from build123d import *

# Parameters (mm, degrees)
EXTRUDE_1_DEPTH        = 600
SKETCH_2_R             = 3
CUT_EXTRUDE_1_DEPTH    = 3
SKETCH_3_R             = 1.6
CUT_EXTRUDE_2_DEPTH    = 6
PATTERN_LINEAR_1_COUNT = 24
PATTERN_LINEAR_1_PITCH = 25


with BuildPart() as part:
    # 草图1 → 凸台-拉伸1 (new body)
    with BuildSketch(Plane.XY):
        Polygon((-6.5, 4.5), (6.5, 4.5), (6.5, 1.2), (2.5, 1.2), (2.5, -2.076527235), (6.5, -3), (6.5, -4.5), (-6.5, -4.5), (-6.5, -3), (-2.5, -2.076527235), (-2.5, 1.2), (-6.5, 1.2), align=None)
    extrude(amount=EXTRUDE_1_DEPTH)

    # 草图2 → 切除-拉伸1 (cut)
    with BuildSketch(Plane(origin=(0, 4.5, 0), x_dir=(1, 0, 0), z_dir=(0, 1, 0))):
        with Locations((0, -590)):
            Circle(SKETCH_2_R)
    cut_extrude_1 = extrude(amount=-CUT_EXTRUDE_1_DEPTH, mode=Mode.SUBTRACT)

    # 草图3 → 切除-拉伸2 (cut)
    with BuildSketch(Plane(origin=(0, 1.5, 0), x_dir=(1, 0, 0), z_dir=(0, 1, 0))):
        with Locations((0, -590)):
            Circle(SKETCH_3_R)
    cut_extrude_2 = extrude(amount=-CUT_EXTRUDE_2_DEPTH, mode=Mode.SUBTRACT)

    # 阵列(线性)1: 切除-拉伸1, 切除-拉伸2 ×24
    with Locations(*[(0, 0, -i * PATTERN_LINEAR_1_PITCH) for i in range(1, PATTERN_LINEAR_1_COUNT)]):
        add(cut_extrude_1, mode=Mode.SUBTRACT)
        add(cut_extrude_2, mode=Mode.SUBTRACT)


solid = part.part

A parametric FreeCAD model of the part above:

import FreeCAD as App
import Part
import Sketcher
from FreeCAD import Vector
Q = App.Units.Quantity

doc = App.newDocument("Part")
body = doc.addObject("PartDesign::Body", "Body")

# Sketch on XY plane
sketch1 = body.newObject("Sketcher::SketchObject", "Sketch")
sketch1.AttachmentSupport = (doc.getObject("XY_Plane"), [""])
sketch1.MapMode = "FlatFace"
sketch1.addGeometry([
    Part.LineSegment(Vector(6.5, 4.5, 0), Vector(-6.5, 4.5, 0)),  # 0
    Part.LineSegment(Vector(-6.5, 4.5, 0), Vector(-6.5, 1.2, 0)),  # 1
    Part.LineSegment(Vector(-6.5, 1.2, 0), Vector(-2.5, 1.2, 0)),  # 2
    Part.LineSegment(Vector(-2.5, 1.2, 0), Vector(-2.5, -2.1, 0)),  # 3
    Part.LineSegment(Vector(-2.5, -2.1, 0), Vector(-6.5, -3, 0)),  # 4
    Part.LineSegment(Vector(-6.5, -3, 0), Vector(-6.5, -4.5, 0)),  # 5
    Part.LineSegment(Vector(-6.5, -4.5, 0), Vector(6.5, -4.5, 0)),  # 6
    Part.LineSegment(Vector(6.5, -4.5, 0), Vector(6.5, -3, 0)),  # 7
    Part.LineSegment(Vector(6.5, -3, 0), Vector(2.5, -2.1, 0)),  # 8
    Part.LineSegment(Vector(2.5, -2.1, 0), Vector(2.5, 1.2, 0)),  # 9
    Part.LineSegment(Vector(2.5, 1.2, 0), Vector(6.5, 1.2, 0)),  # 10
    Part.LineSegment(Vector(6.5, 1.2, 0), Vector(6.5, 4.5, 0)),  # 11
], False)
sketch1.addConstraint([
    Sketcher.Constraint("Coincident", 0, 2, 1, 1),
    Sketcher.Constraint("Coincident", 1, 2, 2, 1),
    Sketcher.Constraint("Coincident", 2, 2, 3, 1),
    Sketcher.Constraint("Coincident", 3, 2, 4, 1),
    Sketcher.Constraint("Coincident", 4, 2, 5, 1),
    Sketcher.Constraint("Coincident", 5, 2, 6, 1),
    Sketcher.Constraint("Coincident", 6, 2, 7, 1),
    Sketcher.Constraint("Coincident", 7, 2, 8, 1),
    Sketcher.Constraint("Coincident", 8, 2, 9, 1),
    Sketcher.Constraint("Coincident", 9, 2, 10, 1),
    Sketcher.Constraint("Coincident", 10, 2, 11, 1),
    Sketcher.Constraint("Coincident", 11, 2, 0, 1),
    Sketcher.Constraint("Horizontal", 0),
    Sketcher.Constraint("Vertical", 1),
    Sketcher.Constraint("Horizontal", 2),
    Sketcher.Constraint("Vertical", 3),
    Sketcher.Constraint("Vertical", 5),
    Sketcher.Constraint("Horizontal", 6),
    Sketcher.Constraint("Vertical", 7),
    Sketcher.Constraint("Vertical", 9),
    Sketcher.Constraint("Horizontal", 10),
    Sketcher.Constraint("Vertical", 11),
    Sketcher.Constraint("Symmetric", 0, 2, 6, 2, -1, 1),
    Sketcher.Constraint("Symmetric", 4, 2, 7, 2, -2),
    Sketcher.Constraint("Symmetric", 3, 2, 8, 2, -2),
    Sketcher.Constraint("Symmetric", 1, 2, 10, 2, -2),
    Sketcher.Constraint("DistanceX", 0, 2, 0, 1, 13.0),
    Sketcher.Constraint("DistanceX", 2, 1, 2, 2, 4.0),
    Sketcher.Constraint("Angle", 4, Q("-167 deg")),
    Sketcher.Constraint("DistanceY", 1, 2, 1, 1, 3.3),
    Sketcher.Constraint("DistanceY", 5, 2, 5, 1, 1.5),
    Sketcher.Constraint("DistanceY", 4, 2, -1, 1, 3.0),
])
pad1 = body.newObject("PartDesign::Pad", "Pad")
pad1.Profile = sketch1
pad1.Length = 600

# Sketch on XZ plane
sketch2 = body.newObject("Sketcher::SketchObject", "Sketch001")
sketch2.AttachmentSupport = (doc.getObject("XZ_Plane"), [""])
sketch2.MapMode = "FlatFace"
sketch2.AttachmentOffset = App.Placement(Vector(0, 0, -4.5), App.Rotation())
sketch2.addGeometry(Part.Circle(Vector(0, 590, 0), Vector(0, 0, 1), 3), False)
sketch2.addConstraint([
    Sketcher.Constraint("PointOnObject", 0, 3, -2),
    Sketcher.Constraint("Diameter", 0, 6.0),
    Sketcher.Constraint("DistanceY", -1, 1, 0, 3, 590.0),
])
pocket1 = body.newObject("PartDesign::Pocket", "Pocket")
pocket1.Profile = sketch2
pocket1.Length = 3
pocket1.Reversed = True

# Sketch on XZ plane
sketch3 = body.newObject("Sketcher::SketchObject", "Sketch002")
sketch3.AttachmentSupport = (doc.getObject("XZ_Plane"), [""])
sketch3.MapMode = "FlatFace"
sketch3.AttachmentOffset = App.Placement(Vector(0, 0, -1.5), App.Rotation())
sketch3.addGeometry(Part.Circle(Vector(0, 590, 0), Vector(0, 0, 1), 1.6), False)
sketch3.addConstraint([
    Sketcher.Constraint("PointOnObject", 0, 3, -2),
    Sketcher.Constraint("Diameter", 0, 3.2),
    Sketcher.Constraint("DistanceY", -1, 1, 0, 3, 590.0),
])
pocket2 = body.newObject("PartDesign::Pocket", "Pocket001")
pocket2.Profile = sketch3
pocket2.Length = 6
pocket2.Reversed = True
doc.recompute()

linearpattern = body.newObject("PartDesign::LinearPattern", "LinearPattern")
linearpattern.Originals = [pocket1, pocket2]
linearpattern.Direction = (doc.getObject("Z_Axis"), [""])
linearpattern.Mode = "offset"
linearpattern.Offset = 25
linearpattern.Occurrences = 24
linearpattern.Reversed = True
body.Tip = linearpattern

doc.recompute()
